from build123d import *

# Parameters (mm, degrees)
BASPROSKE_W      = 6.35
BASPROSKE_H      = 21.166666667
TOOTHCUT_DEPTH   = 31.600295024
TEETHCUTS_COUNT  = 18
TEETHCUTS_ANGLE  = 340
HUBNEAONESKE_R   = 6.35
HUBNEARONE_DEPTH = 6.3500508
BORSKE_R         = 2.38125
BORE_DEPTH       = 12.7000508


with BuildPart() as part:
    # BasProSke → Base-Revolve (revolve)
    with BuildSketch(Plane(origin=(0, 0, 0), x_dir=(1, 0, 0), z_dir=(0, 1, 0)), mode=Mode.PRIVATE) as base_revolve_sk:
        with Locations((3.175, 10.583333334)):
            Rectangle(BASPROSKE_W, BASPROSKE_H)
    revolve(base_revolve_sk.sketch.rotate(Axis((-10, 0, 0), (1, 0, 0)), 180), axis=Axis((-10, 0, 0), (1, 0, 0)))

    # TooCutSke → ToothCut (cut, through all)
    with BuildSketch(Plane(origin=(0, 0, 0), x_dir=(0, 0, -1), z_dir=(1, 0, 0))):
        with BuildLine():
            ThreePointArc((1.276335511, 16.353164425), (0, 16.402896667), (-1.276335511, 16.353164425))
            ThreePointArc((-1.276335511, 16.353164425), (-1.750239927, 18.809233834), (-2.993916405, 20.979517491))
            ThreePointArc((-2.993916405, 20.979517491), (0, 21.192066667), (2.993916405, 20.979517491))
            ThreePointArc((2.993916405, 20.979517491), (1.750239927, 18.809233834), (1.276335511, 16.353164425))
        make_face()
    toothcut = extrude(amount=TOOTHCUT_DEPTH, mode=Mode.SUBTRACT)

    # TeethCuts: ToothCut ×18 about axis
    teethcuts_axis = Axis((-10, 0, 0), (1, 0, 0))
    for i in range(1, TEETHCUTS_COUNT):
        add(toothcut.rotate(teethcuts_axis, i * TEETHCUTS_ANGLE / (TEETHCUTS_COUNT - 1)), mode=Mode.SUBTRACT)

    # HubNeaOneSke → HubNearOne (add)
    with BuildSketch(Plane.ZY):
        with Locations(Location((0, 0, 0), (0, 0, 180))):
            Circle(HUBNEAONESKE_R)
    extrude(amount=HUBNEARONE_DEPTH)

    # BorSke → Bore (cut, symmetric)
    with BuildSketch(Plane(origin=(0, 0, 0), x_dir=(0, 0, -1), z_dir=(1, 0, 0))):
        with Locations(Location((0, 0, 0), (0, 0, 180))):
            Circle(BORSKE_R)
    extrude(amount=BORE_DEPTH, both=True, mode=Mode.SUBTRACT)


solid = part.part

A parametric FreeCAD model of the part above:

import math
import FreeCAD as App
import Part
import Sketcher
from FreeCAD import Vector
Q = App.Units.Quantity

doc = App.newDocument("Part")
body = doc.addObject("PartDesign::Body", "Body")

# Sketch on XZ plane
sketch1 = body.newObject("Sketcher::SketchObject", "Sketch")
sketch1.AttachmentSupport = (doc.getObject("XZ_Plane"), [""])
sketch1.MapMode = "FlatFace"
sketch1.addGeometry([
    Part.LineSegment(Vector(0, -21.166667, 0), Vector(0, 0, 0)),
    Part.LineSegment(Vector(0, 0, 0), Vector(6.35, 0, 0)),
    Part.LineSegment(Vector(6.35, 0, 0), Vector(6.35, -21.166667, 0)),
    Part.LineSegment(Vector(6.35, -21.166667, 0), Vector(0, -21.166667, 0)),
], False)
sketch1.addConstraint([
    Sketcher.Constraint("Coincident", 0, 2, 1, 1),
    Sketcher.Constraint("Coincident", 1, 2, 2, 1),
    Sketcher.Constraint("Coincident", 2, 2, 3, 1),
    Sketcher.Constraint("Coincident", 3, 2, 0, 1),
    Sketcher.Constraint("Vertical", 0),
    Sketcher.Constraint("Horizontal", 1),
    Sketcher.Constraint("Vertical", 2),
    Sketcher.Constraint("Horizontal", 3),
    Sketcher.Constraint("Coincident", 0, 2, -1, 1),
    Sketcher.Constraint("DistanceX", 1, 1, 1, 2, Q("0.25 in")),
    Sketcher.Constraint("DistanceY", 0, 1, 0, 2, Q("21.166667 mm")),
])
revolution = body.newObject("PartDesign::Revolution", "Revolution")
revolution.Profile = sketch1
revolution.ReferenceAxis = (sketch1, ["H_Axis"])
revolution.Angle = 360

# Sketch on YZ plane
sketch2 = body.newObject("Sketcher::SketchObject", "Sketch001")
sketch2.AttachmentSupport = (doc.getObject("YZ_Plane"), [""])
sketch2.MapMode = "FlatFace"
sketch2.addGeometry([
    Part.ArcOfCircle(Part.Circle(Vector(0, 0, 0), Vector(0, 0, 1), 16.402896), math.radians(-4.462787), math.radians(4.462787)),
    Part.ArcOfCircle(Part.Circle(Vector(16.157109, -8.893813, 0), Vector(0, 0, 1), 7.62), math.radians(50.73841), math.radians(88.525673)),
    Part.ArcOfCircle(Part.Circle(Vector(0, 0, 0), Vector(0, 0, 1), 21.192067), math.radians(-8.121651), math.radians(8.121651)),
    Part.ArcOfCircle(Part.Circle(Vector(16.157109, 8.893813, 0), Vector(0, 0, 1), 7.62), math.radians(-88.525673), math.radians(-50.73841)),
], False)
sketch2.addConstraint([
    Sketcher.Constraint("Coincident", 0, 1, 1, 2),
    Sketcher.Constraint("Coincident", 1, 1, 2, 1),
    Sketcher.Constraint("Coincident", 2, 2, 3, 2),
    Sketcher.Constraint("Coincident", 3, 1, 0, 2),
    Sketcher.Constraint("Coincident", 0, 3, -1, 1),
    Sketcher.Constraint("Coincident", 2, 3, -1, 1),
    Sketcher.Constraint("Equal", 1, 3),
    Sketcher.Constraint("Symmetric", 1, 3, 3, 3, -1),
    Sketcher.Constraint("Radius", 1, Q("0.3 in")),
    Sketcher.Constraint("Radius", 0, Q("16.402896 mm")),
    Sketcher.Constraint("Radius", 2, Q("21.192067 mm")),
    Sketcher.Constraint("DistanceX", -1, 1, 1, 3, Q("16.157109 mm")),
    Sketcher.Constraint("DistanceY", 0, 1, 3, 3, Q("10.170148 mm")),
])
pocket1 = body.newObject("PartDesign::Pocket", "Pocket")
pocket1.Profile = sketch2
pocket1.Type = "ThroughAll"
pocket1.Reversed = True
doc.recompute()

polarpattern = body.newObject("PartDesign::PolarPattern", "PolarPattern")
polarpattern.Originals = [pocket1]
polarpattern.Axis = (doc.getObject("X_Axis"), [""])
polarpattern.Angle = 360
polarpattern.Occurrences = 18
body.Tip = polarpattern

# Sketch on YZ plane
sketch3 = body.newObject("Sketcher::SketchObject", "Sketch002")
sketch3.AttachmentSupport = (doc.getObject("YZ_Plane"), [""])
sketch3.MapMode = "FlatFace"
sketch3.addGeometry(Part.Circle(Vector(0, 0, 0), Vector(0, 0, 1), 6.35), False)
sketch3.addConstraint([
    Sketcher.Constraint("Coincident", 0, 3, -1, 1),
    Sketcher.Constraint("Diameter", 0, Q("0.5 in")),
])
pad1 = body.newObject("PartDesign::Pad", "Pad")
pad1.Profile = sketch3
pad1.Length = 6.350051
pad1.Reversed = True

# Sketch on YZ plane
sketch4 = body.newObject("Sketcher::SketchObject", "Sketch003")
sketch4.AttachmentSupport = (doc.getObject("YZ_Plane"), [""])
sketch4.MapMode = "FlatFace"
sketch4.addGeometry(Part.Circle(Vector(0, 0, 0), Vector(0, 0, 1), 2.38125), False)
sketch4.addConstraint([
    Sketcher.Constraint("Coincident", 0, 3, -1, 1),
    Sketcher.Constraint("Diameter", 0, Q("0.1875 in")),
])
pocket2 = body.newObject("PartDesign::Pocket", "Pocket001")
pocket2.Profile = sketch4
pocket2.Length = 25.400102
pocket2.Midplane = True

doc.recompute()
